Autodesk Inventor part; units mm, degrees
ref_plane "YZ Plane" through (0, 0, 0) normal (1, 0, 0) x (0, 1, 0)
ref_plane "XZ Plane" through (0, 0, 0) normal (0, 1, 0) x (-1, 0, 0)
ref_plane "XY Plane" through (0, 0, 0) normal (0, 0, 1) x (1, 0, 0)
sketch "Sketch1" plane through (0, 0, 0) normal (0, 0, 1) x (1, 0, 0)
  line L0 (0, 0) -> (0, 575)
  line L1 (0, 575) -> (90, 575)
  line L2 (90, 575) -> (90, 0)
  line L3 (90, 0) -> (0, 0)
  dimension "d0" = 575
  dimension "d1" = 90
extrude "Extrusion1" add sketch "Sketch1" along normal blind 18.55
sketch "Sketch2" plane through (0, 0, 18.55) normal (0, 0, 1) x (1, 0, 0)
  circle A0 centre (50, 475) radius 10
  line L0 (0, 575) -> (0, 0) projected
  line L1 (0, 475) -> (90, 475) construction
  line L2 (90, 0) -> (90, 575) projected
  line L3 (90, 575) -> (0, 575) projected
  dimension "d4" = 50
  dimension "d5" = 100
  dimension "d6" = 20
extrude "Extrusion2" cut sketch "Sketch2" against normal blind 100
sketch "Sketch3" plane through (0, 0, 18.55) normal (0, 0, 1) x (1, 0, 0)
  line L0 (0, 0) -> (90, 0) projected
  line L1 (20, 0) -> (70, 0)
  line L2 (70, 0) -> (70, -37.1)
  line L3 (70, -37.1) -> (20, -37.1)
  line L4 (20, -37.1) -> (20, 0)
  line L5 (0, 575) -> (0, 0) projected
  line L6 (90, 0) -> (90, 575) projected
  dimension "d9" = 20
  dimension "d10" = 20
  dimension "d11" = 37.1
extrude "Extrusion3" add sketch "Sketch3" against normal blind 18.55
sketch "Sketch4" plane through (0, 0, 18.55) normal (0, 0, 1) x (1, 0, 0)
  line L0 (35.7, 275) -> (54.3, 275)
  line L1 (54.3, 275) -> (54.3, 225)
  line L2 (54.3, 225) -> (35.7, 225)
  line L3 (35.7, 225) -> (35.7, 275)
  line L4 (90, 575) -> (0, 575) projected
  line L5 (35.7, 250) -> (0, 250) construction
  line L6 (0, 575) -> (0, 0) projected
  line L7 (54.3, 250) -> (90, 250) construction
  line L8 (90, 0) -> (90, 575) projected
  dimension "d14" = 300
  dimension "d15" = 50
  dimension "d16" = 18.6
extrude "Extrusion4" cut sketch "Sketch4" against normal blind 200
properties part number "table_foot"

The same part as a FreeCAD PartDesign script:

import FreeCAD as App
import Part
import Sketcher
from FreeCAD import Vector
Q = App.Units.Quantity


def add_polygon(sketch, points):
    """Adds a closed chain of lines whose ends are joined by coincident constraints."""
    first, n = sketch.GeometryCount, len(points)
    for a, b in zip(points, points[1:] + points[:1]):
        sketch.addGeometry(Part.LineSegment(App.Vector(*a, 0), App.Vector(*b, 0)), False)
    for i in range(n):
        sketch.addConstraint(Sketcher.Constraint("Coincident", first + i, 2, first + (i + 1) % n, 1))

doc = App.newDocument("Part")
body = doc.addObject("PartDesign::Body", "Body")

# Sketch on XY plane
sketch1 = doc.addObject("Sketcher::SketchObject", "Sketch")
body.addObject(sketch1)
sketch1.AttachmentSupport = (doc.XY_Plane, [""])
sketch1.MapMode = "FlatFace"
add_polygon(sketch1, [(0, 575), (0, 0), (90, 0), (90, 575)])  # lines 0-3
sketch1.addConstraint([
    Sketcher.Constraint("Vertical", 0),
    Sketcher.Constraint("Horizontal", 1),
    Sketcher.Constraint("Vertical", 2),
    Sketcher.Constraint("Horizontal", 3),
    Sketcher.Constraint("Coincident", 0, 2, -1, 1),
    Sketcher.Constraint("DistanceX", 1, 1, 1, 2, Q("90 mm")),
    Sketcher.Constraint("DistanceY", 0, 2, 0, 1, Q("575 mm")),
])
pad1 = doc.addObject("PartDesign::Pad", "Pad")
body.addObject(pad1)
pad1.Profile = sketch1
pad1.Length = 18.55

# Sketch on XY plane
sketch2 = doc.addObject("Sketcher::SketchObject", "Sketch001")
body.addObject(sketch2)
sketch2.AttachmentSupport = (doc.XY_Plane, [""])
sketch2.MapMode = "FlatFace"
sketch2.AttachmentOffset = App.Placement(Vector(0, 0, 18.55), App.Rotation())
sketch2.addGeometry(Part.Circle(Vector(50, 475, 0), Vector(0, 0, 1), 10), False)
sketch2.addConstraint([
    Sketcher.Constraint("Diameter", 0, Q("20 mm")),
    Sketcher.Constraint("DistanceX", -1, 1, 0, 3, Q("50 mm")),
    Sketcher.Constraint("DistanceY", -1, 1, 0, 3, Q("475 mm")),
])
pocket1 = doc.addObject("PartDesign::Pocket", "Pocket")
body.addObject(pocket1)
pocket1.Profile = sketch2
pocket1.Length = 100

# Sketch on XY plane
sketch3 = doc.addObject("Sketcher::SketchObject", "Sketch002")
body.addObject(sketch3)
sketch3.AttachmentSupport = (doc.XY_Plane, [""])
sketch3.MapMode = "FlatFace"
sketch3.AttachmentOffset = App.Placement(Vector(0, 0, 18.55), App.Rotation())
add_polygon(sketch3, [(70, 0), (20, 0), (20, -37), (70, -37)])  # lines 0-3
sketch3.addConstraint([
    Sketcher.Constraint("Horizontal", 0),
    Sketcher.Constraint("Vertical", 1),
    Sketcher.Constraint("Horizontal", 2),
    Sketcher.Constraint("Vertical", 3),
    Sketcher.Constraint("PointOnObject", 0, 2, -1),
    Sketcher.Constraint("DistanceY", 1, 2, 1, 1, Q("37.1 mm")),
    Sketcher.Constraint("DistanceX", -1, 1, 0, 2, Q("20 mm")),
    Sketcher.Constraint("DistanceX", 0, 2, 0, 1, Q("50 mm")),
])
pad2 = doc.addObject("PartDesign::Pad", "Pad001")
body.addObject(pad2)
pad2.Profile = sketch3
pad2.Length = 18.55
pad2.Reversed = True

# Sketch on XY plane
sketch4 = doc.addObject("Sketcher::SketchObject", "Sketch003")
body.addObject(sketch4)
sketch4.AttachmentSupport = (doc.XY_Plane, [""])
sketch4.MapMode = "FlatFace"
sketch4.AttachmentOffset = App.Placement(Vector(0, 0, 18.55), App.Rotation())
add_polygon(sketch4, [(54, 275), (36, 275), (36, 225), (54, 225)])  # lines 0-3
sketch4.addConstraint([
    Sketcher.Constraint("Horizontal", 0),
    Sketcher.Constraint("Vertical", 1),
    Sketcher.Constraint("Horizontal", 2),
    Sketcher.Constraint("Vertical", 3),
    Sketcher.Constraint("DistanceY", 1, 2, 1, 1, Q("50 mm")),
    Sketcher.Constraint("DistanceX", 0, 2, 0, 1, Q("18.6 mm")),
    Sketcher.Constraint("DistanceY", -1, 1, 0, 2, Q("275 mm")),
    Sketcher.Constraint("DistanceX", -1, 1, 0, 2, Q("35.7 mm")),
])
pocket2 = doc.addObject("PartDesign::Pocket", "Pocket001")
body.addObject(pocket2)
pocket2.Profile = sketch4
pocket2.Length = 200

doc.recompute()
